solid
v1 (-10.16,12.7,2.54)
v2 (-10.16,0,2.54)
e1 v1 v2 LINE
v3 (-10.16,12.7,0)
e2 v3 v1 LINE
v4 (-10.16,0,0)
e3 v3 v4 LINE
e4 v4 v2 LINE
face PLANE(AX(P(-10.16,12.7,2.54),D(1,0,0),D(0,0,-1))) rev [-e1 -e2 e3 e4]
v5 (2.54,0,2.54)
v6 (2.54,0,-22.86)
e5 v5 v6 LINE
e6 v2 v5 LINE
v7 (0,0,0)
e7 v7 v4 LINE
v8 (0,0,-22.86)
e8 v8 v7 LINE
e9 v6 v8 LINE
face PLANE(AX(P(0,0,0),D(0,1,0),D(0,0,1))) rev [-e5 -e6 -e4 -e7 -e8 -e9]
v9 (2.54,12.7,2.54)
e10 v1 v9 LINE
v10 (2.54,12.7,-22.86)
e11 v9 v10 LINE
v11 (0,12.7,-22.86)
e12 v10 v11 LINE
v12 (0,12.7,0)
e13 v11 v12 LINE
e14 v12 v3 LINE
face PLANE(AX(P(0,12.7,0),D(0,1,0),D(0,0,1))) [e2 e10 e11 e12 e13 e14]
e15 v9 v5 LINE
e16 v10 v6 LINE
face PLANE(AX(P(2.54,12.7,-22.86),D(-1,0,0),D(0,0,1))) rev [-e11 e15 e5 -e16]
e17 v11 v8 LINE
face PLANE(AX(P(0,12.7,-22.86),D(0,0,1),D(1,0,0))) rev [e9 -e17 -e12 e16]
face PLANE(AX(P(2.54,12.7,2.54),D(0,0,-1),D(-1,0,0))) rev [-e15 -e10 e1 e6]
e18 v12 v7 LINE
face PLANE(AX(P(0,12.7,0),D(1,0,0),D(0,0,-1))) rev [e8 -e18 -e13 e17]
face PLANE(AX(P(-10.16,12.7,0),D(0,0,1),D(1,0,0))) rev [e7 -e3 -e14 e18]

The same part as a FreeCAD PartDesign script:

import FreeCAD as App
import Part
import Sketcher

V = App.Vector
Q = App.Units.Quantity


def add_polygon(sketch, points):
    """Adds a closed chain of lines whose ends are joined by coincident constraints."""
    first, n = sketch.GeometryCount, len(points)
    for a, b in zip(points, points[1:] + points[:1]):
        sketch.addGeometry(Part.LineSegment(App.Vector(*a, 0), App.Vector(*b, 0)), False)
    for i in range(n):
        sketch.addConstraint(Sketcher.Constraint("Coincident", first + i, 2, first + (i + 1) % n, 1))

doc = App.newDocument("Part")
params = doc.addObject("Spreadsheet::Sheet", "Params")
for row, (alias, value) in enumerate([
    ("sketch1_height", "1 in"),
    ("sketch1_width", "0.4 in"),
    ("sketch1_width2", "0.5 in"),
    ("pad1_length", "0.5 in"),
], start=1):
    params.set(f"A{row}", alias)
    params.set(f"B{row}", "=" + value)
    params.setAlias(f"B{row}", alias)

body = doc.addObject("PartDesign::Body", "Body")

# Sketch on XZ plane
sketch1 = doc.addObject("Sketcher::SketchObject", "Sketch")
body.addObject(sketch1)
sketch1.AttachmentSupport = (doc.XZ_Plane, [""])
sketch1.MapMode = "FlatFace"
add_polygon(sketch1, [(0, -22.9), (0, 0), (-10.2, 0), (-10.2, 2.5), (2.5, 2.5), (2.5, -22.9)])  # lines 0-5
sketch1.addConstraint(Sketcher.Constraint("Vertical", 0))
sketch1.addConstraint(Sketcher.Constraint("Horizontal", 1))
sketch1.addConstraint(Sketcher.Constraint("Vertical", 2))
sketch1.addConstraint(Sketcher.Constraint("Horizontal", 3))
sketch1.addConstraint(Sketcher.Constraint("Vertical", 4))
sketch1.addConstraint(Sketcher.Constraint("Horizontal", 5))
sketch1.addConstraint(Sketcher.Constraint("Coincident", 0, 2, -1, 1))
sketch1.addConstraint(Sketcher.Constraint("Equal", 5, 2))
sketch1.addConstraint(Sketcher.Constraint("DistanceY", 4, 2, 4, 1, Q("1 in")))
sketch1.addConstraint(Sketcher.Constraint("DistanceX", 1, 2, 1, 1, Q("0.4 in")))
sketch1.addConstraint(Sketcher.Constraint("DistanceX", 3, 1, 3, 2, Q("0.5 in")))
sketch1.setExpression("Constraints[14]", "Params.sketch1_height")
sketch1.setExpression("Constraints[15]", "Params.sketch1_width")
sketch1.setExpression("Constraints[16]", "Params.sketch1_width2")
pad1 = doc.addObject("PartDesign::Pad", "Pad")
body.addObject(pad1)
pad1.Profile = sketch1
pad1.setExpression("Length", "Params.pad1_length")
pad1.Reversed = True

doc.recompute()
